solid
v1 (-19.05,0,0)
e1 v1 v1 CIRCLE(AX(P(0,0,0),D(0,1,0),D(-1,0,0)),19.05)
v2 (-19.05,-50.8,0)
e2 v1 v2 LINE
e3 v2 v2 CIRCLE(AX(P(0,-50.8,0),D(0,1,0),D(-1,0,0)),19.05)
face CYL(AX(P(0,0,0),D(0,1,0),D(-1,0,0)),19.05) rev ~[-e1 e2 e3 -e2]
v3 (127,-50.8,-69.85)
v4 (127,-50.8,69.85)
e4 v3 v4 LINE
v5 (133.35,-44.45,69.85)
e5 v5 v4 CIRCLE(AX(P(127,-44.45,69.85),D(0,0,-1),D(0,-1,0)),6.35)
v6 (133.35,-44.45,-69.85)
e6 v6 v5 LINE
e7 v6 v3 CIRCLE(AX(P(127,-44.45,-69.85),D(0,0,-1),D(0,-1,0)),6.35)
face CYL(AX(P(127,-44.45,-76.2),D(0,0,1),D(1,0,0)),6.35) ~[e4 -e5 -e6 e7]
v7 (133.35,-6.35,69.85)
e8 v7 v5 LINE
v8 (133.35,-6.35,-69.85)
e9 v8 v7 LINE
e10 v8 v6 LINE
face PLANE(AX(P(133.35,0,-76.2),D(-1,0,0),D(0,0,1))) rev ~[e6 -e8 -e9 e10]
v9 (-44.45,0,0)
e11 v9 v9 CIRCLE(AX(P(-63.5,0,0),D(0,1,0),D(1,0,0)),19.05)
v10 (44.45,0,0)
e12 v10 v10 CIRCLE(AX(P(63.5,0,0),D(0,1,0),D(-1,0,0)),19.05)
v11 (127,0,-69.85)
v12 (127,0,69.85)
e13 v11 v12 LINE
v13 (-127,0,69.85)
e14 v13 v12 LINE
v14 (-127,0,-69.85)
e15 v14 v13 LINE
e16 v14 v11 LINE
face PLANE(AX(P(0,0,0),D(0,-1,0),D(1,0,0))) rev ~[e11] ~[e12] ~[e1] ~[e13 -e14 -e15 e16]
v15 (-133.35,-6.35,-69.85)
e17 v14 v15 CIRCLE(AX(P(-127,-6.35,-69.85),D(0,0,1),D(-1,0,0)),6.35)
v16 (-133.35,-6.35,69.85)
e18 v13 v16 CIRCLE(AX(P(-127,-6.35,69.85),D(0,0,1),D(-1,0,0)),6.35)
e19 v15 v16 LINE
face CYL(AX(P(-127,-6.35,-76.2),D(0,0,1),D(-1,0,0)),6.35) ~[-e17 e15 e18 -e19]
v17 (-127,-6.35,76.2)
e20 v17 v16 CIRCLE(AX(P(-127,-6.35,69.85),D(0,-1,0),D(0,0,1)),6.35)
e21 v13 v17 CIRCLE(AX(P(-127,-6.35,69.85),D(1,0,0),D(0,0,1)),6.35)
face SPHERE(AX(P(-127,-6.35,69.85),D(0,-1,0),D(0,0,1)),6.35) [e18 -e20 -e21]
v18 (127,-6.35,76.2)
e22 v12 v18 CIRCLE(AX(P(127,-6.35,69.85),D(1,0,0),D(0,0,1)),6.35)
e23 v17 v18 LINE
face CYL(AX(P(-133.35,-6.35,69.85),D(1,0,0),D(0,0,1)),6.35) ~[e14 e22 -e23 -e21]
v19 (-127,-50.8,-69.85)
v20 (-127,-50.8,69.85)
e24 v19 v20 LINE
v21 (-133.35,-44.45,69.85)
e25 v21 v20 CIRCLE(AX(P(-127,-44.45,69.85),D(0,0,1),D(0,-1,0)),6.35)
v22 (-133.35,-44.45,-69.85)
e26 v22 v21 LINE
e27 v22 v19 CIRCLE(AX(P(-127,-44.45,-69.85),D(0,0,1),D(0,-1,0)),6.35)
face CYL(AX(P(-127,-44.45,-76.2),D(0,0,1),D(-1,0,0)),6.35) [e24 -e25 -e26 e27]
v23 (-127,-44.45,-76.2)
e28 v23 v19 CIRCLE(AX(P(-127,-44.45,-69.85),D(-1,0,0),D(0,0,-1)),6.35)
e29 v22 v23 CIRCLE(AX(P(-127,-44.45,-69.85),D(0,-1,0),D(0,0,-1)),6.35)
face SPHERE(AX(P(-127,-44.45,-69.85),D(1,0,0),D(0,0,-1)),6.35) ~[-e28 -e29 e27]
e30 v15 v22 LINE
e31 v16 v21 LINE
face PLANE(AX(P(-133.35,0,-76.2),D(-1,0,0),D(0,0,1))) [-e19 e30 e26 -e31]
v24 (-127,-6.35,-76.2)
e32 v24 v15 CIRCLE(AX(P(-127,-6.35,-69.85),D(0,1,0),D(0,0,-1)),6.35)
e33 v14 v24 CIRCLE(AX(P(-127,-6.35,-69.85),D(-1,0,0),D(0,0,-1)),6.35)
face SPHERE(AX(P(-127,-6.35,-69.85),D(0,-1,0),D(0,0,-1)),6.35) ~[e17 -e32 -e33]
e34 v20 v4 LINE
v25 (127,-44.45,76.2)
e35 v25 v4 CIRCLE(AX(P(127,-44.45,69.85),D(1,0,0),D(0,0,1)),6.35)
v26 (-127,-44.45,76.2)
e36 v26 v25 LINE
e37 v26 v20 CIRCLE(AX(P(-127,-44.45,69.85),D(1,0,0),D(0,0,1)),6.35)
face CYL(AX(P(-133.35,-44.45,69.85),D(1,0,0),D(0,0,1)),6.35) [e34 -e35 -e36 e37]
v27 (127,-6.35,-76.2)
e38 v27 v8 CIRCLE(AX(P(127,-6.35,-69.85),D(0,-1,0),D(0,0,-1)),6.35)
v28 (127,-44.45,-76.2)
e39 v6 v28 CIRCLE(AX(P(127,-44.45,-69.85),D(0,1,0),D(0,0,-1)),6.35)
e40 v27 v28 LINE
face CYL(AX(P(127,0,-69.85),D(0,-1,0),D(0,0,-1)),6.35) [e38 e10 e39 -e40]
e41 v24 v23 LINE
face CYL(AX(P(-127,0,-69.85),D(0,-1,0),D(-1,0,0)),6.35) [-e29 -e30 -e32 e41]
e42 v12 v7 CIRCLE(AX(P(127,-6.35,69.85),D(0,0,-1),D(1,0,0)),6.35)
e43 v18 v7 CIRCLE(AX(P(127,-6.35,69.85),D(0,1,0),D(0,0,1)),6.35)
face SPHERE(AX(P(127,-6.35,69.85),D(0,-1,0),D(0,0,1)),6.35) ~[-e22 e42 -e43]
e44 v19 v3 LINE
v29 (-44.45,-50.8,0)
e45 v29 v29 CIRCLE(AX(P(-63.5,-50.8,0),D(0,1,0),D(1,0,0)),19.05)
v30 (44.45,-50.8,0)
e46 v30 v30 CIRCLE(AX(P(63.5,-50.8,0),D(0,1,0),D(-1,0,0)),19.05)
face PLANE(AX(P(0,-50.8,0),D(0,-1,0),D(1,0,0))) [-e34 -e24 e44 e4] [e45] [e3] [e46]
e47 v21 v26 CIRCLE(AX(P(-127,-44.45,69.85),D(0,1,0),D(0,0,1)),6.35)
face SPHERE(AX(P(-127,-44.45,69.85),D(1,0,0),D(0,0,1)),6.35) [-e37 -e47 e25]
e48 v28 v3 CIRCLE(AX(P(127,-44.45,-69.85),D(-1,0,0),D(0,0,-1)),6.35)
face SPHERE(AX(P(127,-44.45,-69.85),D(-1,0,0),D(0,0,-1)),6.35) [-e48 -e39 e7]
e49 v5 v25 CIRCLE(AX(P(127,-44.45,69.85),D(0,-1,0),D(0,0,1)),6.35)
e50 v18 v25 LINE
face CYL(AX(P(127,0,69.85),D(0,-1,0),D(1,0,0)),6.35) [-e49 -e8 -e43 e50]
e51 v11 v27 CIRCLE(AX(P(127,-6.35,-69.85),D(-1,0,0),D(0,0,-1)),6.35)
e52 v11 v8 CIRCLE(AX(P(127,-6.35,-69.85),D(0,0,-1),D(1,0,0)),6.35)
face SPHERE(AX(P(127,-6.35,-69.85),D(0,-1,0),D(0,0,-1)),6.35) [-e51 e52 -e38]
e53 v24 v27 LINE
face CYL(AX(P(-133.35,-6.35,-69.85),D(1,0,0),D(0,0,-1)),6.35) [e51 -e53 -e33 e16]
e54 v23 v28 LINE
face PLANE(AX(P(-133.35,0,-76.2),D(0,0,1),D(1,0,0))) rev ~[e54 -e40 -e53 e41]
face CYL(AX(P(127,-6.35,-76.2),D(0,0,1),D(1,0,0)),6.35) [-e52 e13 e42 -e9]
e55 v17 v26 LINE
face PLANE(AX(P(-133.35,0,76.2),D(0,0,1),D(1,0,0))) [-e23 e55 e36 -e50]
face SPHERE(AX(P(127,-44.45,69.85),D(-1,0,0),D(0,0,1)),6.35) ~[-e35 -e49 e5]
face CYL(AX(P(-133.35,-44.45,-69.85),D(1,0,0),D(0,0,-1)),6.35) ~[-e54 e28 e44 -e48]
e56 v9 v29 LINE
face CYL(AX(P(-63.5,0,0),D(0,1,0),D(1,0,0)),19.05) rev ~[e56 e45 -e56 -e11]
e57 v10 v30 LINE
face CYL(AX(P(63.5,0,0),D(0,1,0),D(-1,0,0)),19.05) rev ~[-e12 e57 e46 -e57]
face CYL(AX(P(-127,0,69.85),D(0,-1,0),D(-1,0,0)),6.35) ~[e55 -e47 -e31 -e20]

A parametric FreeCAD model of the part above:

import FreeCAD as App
import Part
import Sketcher

V = App.Vector
Q = App.Units.Quantity

doc = App.newDocument("Part")
params = doc.addObject("Spreadsheet::Sheet", "Params")
for row, (alias, value) in enumerate([
    ("sketch1_height", "6 in"),
    ("sketch1_width", "10.5 in"),
    ("pad1_length", "2 in"),
    ("fillet_radius", "0.25 in"),
    ("sketch2_diameter", "1.5 in"),
    ("pocket1_length", "2.5 in"),
], start=1):
    params.set(f"A{row}", alias)
    params.set(f"B{row}", "=" + value)
    params.setAlias(f"B{row}", alias)

body = doc.addObject("PartDesign::Body", "Body")

# Sketch on XZ plane
sketch1 = body.newObject("Sketcher::SketchObject", "Sketch")
sketch1.AttachmentSupport = (doc.getObject("XZ_Plane"), [""])
sketch1.MapMode = "FlatFace"
sketch1.addGeometry([
    Part.LineSegment(V(-133, 76, 0), V(-133, -76, 0)),
    Part.LineSegment(V(-133, -76, 0), V(133, -76, 0)),
    Part.LineSegment(V(133, -76, 0), V(133, 76, 0)),
    Part.LineSegment(V(133, 76, 0), V(-133, 76, 0)),
], False)
sketch1.addConstraint([
    Sketcher.Constraint("Coincident", 0, 2, 1, 1),
    Sketcher.Constraint("Coincident", 1, 2, 2, 1),
    Sketcher.Constraint("Coincident", 2, 2, 3, 1),
    Sketcher.Constraint("Coincident", 3, 2, 0, 1),
    Sketcher.Constraint("Vertical", 0),
    Sketcher.Constraint("Horizontal", 1),
    Sketcher.Constraint("Vertical", 2),
    Sketcher.Constraint("Horizontal", 3),
    Sketcher.Constraint("Symmetric", 0, 2, 2, 2, -1, 1),
    Sketcher.Constraint("DistanceY", 0, 2, 0, 1, Q("6 in")),
    Sketcher.Constraint("DistanceX", 1, 1, 1, 2, Q("10.5 in")),
])
sketch1.setExpression("Constraints[9]", "Params.sketch1_height")
sketch1.setExpression("Constraints[10]", "Params.sketch1_width")
pad1 = body.newObject("PartDesign::Pad", "Pad")
pad1.Profile = sketch1
pad1.setExpression("Length", "Params.pad1_length")
doc.recompute()

fillet = body.newObject("PartDesign::Fillet", "Fillet")
fillet.Base = (pad1, ["Edge1"])
fillet.UseAllEdges = True
fillet.setExpression("Radius", "Params.fillet_radius")

# Sketch on XZ plane
sketch2 = body.newObject("Sketcher::SketchObject", "Sketch001")
sketch2.AttachmentSupport = (doc.getObject("XZ_Plane"), [""])
sketch2.MapMode = "FlatFace"
sketch2.addGeometry([
    Part.Circle(V(64, 0, 0), V(0, 0, 1), 19),
    Part.Circle(V(0, 0, 0), V(0, 0, 1), 19),
    Part.Circle(V(-64, 0, 0), V(0, 0, 1), 19),
], False)
sketch2.addConstraint([
    Sketcher.Constraint("Coincident", 1, 3, -1, 1),
    Sketcher.Constraint("Equal", 0, 1),
    Sketcher.Constraint("Equal", 1, 2),
    Sketcher.Constraint("Symmetric", 0, 3, 2, 3, -1, 1),
    Sketcher.Constraint("PointOnObject", 0, 3, -1),
    Sketcher.Constraint("Diameter", 0, Q("1.5 in")),
    Sketcher.Constraint("DistanceX", 2, 3, 0, 3, Q("5 in")),
])
sketch2.setExpression("Constraints[5]", "Params.sketch2_diameter")
pocket1 = body.newObject("PartDesign::Pocket", "Pocket")
pocket1.Profile = sketch2
pocket1.setExpression("Length", "Params.pocket1_length")
pocket1.Reversed = True

doc.recompute()
